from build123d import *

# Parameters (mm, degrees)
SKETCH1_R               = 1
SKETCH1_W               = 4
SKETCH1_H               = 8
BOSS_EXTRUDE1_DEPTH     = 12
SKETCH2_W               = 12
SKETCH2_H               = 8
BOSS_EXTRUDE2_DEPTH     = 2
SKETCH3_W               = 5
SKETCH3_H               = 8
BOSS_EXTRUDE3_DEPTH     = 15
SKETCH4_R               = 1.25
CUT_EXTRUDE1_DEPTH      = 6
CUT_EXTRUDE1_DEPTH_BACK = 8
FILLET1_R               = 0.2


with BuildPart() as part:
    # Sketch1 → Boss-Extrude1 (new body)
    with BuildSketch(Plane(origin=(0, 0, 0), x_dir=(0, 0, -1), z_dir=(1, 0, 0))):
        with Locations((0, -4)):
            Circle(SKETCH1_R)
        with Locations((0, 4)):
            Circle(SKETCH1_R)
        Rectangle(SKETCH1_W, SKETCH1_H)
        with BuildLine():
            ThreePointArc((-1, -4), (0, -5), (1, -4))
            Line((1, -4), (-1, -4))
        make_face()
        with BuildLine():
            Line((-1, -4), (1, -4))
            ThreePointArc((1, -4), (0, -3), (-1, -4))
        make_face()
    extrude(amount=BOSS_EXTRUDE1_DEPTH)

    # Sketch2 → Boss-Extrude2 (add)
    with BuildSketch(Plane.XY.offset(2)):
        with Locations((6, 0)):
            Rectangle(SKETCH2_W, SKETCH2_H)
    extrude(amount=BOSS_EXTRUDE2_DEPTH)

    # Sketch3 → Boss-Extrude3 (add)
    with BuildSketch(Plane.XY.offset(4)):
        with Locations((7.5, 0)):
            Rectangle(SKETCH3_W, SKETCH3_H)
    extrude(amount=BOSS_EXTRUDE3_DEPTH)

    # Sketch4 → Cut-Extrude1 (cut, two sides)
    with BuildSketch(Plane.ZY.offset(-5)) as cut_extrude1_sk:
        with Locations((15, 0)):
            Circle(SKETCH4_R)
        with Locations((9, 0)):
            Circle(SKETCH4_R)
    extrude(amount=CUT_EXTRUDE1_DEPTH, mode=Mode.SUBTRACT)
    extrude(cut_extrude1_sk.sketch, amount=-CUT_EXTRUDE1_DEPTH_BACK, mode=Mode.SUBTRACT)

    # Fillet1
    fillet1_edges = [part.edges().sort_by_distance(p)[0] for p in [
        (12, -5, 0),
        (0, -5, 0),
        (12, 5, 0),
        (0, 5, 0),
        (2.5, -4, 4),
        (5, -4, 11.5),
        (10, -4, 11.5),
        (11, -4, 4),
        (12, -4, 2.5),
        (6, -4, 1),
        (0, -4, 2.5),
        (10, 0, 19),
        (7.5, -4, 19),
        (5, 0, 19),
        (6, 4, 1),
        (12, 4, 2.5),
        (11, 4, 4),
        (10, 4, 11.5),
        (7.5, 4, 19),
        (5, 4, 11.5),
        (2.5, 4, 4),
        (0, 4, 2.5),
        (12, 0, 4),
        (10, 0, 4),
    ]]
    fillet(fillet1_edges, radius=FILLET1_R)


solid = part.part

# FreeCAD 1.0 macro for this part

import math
import FreeCAD as App
import Part
import Sketcher
from FreeCAD import Vector


def edges_at(feature, points):
    """Names of the edges that pass closest to the given points."""
    edges = feature.Shape.Edges
    near = lambda p: min(range(len(edges)), key=lambda i: edges[i].distToShape(Part.Vertex(*p))[0])
    return sorted({f"Edge{near(p) + 1}" for p in points})

doc = App.newDocument("Part")
body = doc.addObject("PartDesign::Body", "Body")

sketch1 = doc.addObject("Sketcher::SketchObject", "Sketch")
body.addObject(sketch1)
sketch1.AttachmentSupport = (doc.YZ_Plane, [""])
sketch1.MapMode = "FlatFace"
sketch1.addGeometry(Part.ArcOfCircle(Part.Circle(Vector(-4, 0, 0), Vector(0, 0, 1), 1), math.radians(90), math.radians(270)), False)
sketch1.addGeometry(Part.LineSegment(Vector(-4, -1, 0), Vector(-4, -2, 0)), False)
sketch1.addGeometry(Part.LineSegment(Vector(-4, -2, 0), Vector(4, -2, 0)), False)
sketch1.addGeometry(Part.LineSegment(Vector(4, -2, 0), Vector(4, -1, 0)), False)
sketch1.addGeometry(Part.ArcOfCircle(Part.Circle(Vector(4, 0, 0), Vector(0, 0, 1), 1), math.radians(-90), math.radians(90)), False)
sketch1.addGeometry(Part.LineSegment(Vector(4, 1, 0), Vector(4, 2, 0)), False)
sketch1.addGeometry(Part.LineSegment(Vector(4, 2, 0), Vector(-4, 2, 0)), False)
sketch1.addGeometry(Part.LineSegment(Vector(-4, 2, 0), Vector(-4, 1, 0)), False)
sketch1.addConstraint(Sketcher.Constraint("Coincident", 0, 2, 1, 1))
sketch1.addConstraint(Sketcher.Constraint("Coincident", 1, 2, 2, 1))
sketch1.addConstraint(Sketcher.Constraint("Coincident", 2, 2, 3, 1))
sketch1.addConstraint(Sketcher.Constraint("Coincident", 3, 2, 4, 1))
sketch1.addConstraint(Sketcher.Constraint("Coincident", 4, 2, 5, 1))
sketch1.addConstraint(Sketcher.Constraint("Coincident", 5, 2, 6, 1))
sketch1.addConstraint(Sketcher.Constraint("Coincident", 6, 2, 7, 1))
sketch1.addConstraint(Sketcher.Constraint("Coincident", 7, 2, 0, 1))
sketch1.addConstraint(Sketcher.Constraint("Vertical", 1))
sketch1.addConstraint(Sketcher.Constraint("Horizontal", 2))
sketch1.addConstraint(Sketcher.Constraint("Vertical", 3))
sketch1.addConstraint(Sketcher.Constraint("Vertical", 5))
sketch1.addConstraint(Sketcher.Constraint("Horizontal", 6))
sketch1.addConstraint(Sketcher.Constraint("Vertical", 7))
sketch1.addConstraint(Sketcher.Constraint("Equal", 0, 4))
sketch1.addConstraint(Sketcher.Constraint("Symmetric", 0, 3, 4, 3, -1, 1))
sketch1.addConstraint(Sketcher.Constraint("Symmetric", 1, 2, 5, 2, -1, 1))
sketch1.addConstraint(Sketcher.Constraint("Symmetric", 0, 2, 3, 2, -2))
sketch1.addConstraint(Sketcher.Constraint("Vertical", 4, 3, 2, 2))
sketch1.addConstraint(Sketcher.Constraint("Vertical", 1, 2, 6, 2))
sketch1.addConstraint(Sketcher.Constraint("Radius", 0, 1.0))
sketch1.addConstraint(Sketcher.Constraint("DistanceX", 2, 1, 2, 2, 8.0))
sketch1.addConstraint(Sketcher.Constraint("DistanceY", 1, 2, 1, 1, 1.0))
pad1 = doc.addObject("PartDesign::Pad", "Pad")
body.addObject(pad1)
pad1.Profile = sketch1
pad1.Length = 12

sketch2 = doc.addObject("Sketcher::SketchObject", "Sketch001")
body.addObject(sketch2)
sketch2.AttachmentSupport = (doc.XY_Plane, [""])
sketch2.MapMode = "FlatFace"
sketch2.AttachmentOffset = App.Placement(Vector(0, 0, 2), App.Rotation())
sketch2.addGeometry(Part.LineSegment(Vector(0, 4, 0), Vector(0, -4, 0)), False)
sketch2.addGeometry(Part.LineSegment(Vector(0, -4, 0), Vector(12, -4, 0)), False)
sketch2.addGeometry(Part.LineSegment(Vector(12, -4, 0), Vector(12, 4, 0)), False)
sketch2.addGeometry(Part.LineSegment(Vector(12, 4, 0), Vector(0, 4, 0)), False)
sketch2.addConstraint(Sketcher.Constraint("Coincident", 0, 2, 1, 1))
sketch2.addConstraint(Sketcher.Constraint("Coincident", 1, 2, 2, 1))
sketch2.addConstraint(Sketcher.Constraint("Coincident", 2, 2, 3, 1))
sketch2.addConstraint(Sketcher.Constraint("Coincident", 3, 2, 0, 1))
sketch2.addConstraint(Sketcher.Constraint("Vertical", 0))
sketch2.addConstraint(Sketcher.Constraint("Horizontal", 1))
sketch2.addConstraint(Sketcher.Constraint("Vertical", 2))
sketch2.addConstraint(Sketcher.Constraint("Horizontal", 3))
sketch2.addConstraint(Sketcher.Constraint("Symmetric", 0, 2, 3, 2, -1, 1))
sketch2.addConstraint(Sketcher.Constraint("DistanceX", 1, 1, 1, 2, 12.0))
sketch2.addConstraint(Sketcher.Constraint("DistanceY", 0, 2, 0, 1, 8.0))
pad2 = doc.addObject("PartDesign::Pad", "Pad001")
body.addObject(pad2)
pad2.Profile = sketch2
pad2.Length = 2

sketch3 = doc.addObject("Sketcher::SketchObject", "Sketch002")
body.addObject(sketch3)
sketch3.AttachmentSupport = (doc.XY_Plane, [""])
sketch3.MapMode = "FlatFace"
sketch3.AttachmentOffset = App.Placement(Vector(0, 0, 4), App.Rotation())
sketch3.addGeometry(Part.LineSegment(Vector(5, 4, 0), Vector(5, -4, 0)), False)
sketch3.addGeometry(Part.LineSegment(Vector(5, -4, 0), Vector(10, -4, 0)), False)
sketch3.addGeometry(Part.LineSegment(Vector(10, -4, 0), Vector(10, 4, 0)), False)
sketch3.addGeometry(Part.LineSegment(Vector(10, 4, 0), Vector(5, 4, 0)), False)
sketch3.addConstraint(Sketcher.Constraint("Coincident", 0, 2, 1, 1))
sketch3.addConstraint(Sketcher.Constraint("Coincident", 1, 2, 2, 1))
sketch3.addConstraint(Sketcher.Constraint("Coincident", 2, 2, 3, 1))
sketch3.addConstraint(Sketcher.Constraint("Coincident", 3, 2, 0, 1))
sketch3.addConstraint(Sketcher.Constraint("Vertical", 0))
sketch3.addConstraint(Sketcher.Constraint("Horizontal", 1))
sketch3.addConstraint(Sketcher.Constraint("Vertical", 2))
sketch3.addConstraint(Sketcher.Constraint("Horizontal", 3))
sketch3.addConstraint(Sketcher.Constraint("DistanceX", 1, 1, 1, 2, 5.0))
sketch3.addConstraint(Sketcher.Constraint("DistanceY", 0, 2, 0, 1, 8.0))
sketch3.addConstraint(Sketcher.Constraint("DistanceX", -1, 1, 0, 2, 5.0))
sketch3.addConstraint(Sketcher.Constraint("DistanceY", 0, 2, -1, 1, 4.0))
pad3 = doc.addObject("PartDesign::Pad", "Pad002")
body.addObject(pad3)
pad3.Profile = sketch3
pad3.Length = 15

sketch4 = doc.addObject("Sketcher::SketchObject", "Sketch003")
body.addObject(sketch4)
sketch4.AttachmentSupport = (doc.YZ_Plane, [""])
sketch4.MapMode = "FlatFace"
sketch4.AttachmentOffset = App.Placement(Vector(0, 0, 5), App.Rotation())
sketch4.addGeometry(Part.Circle(Vector(0, 15, 0), Vector(0, 0, 1), 1.2), False)
sketch4.addGeometry(Part.Circle(Vector(0, 9, 0), Vector(0, 0, 1), 1.2), False)
sketch4.addConstraint(Sketcher.Constraint("Equal", 0, 1))
sketch4.addConstraint(Sketcher.Constraint("PointOnObject", 0, 3, -2))
sketch4.addConstraint(Sketcher.Constraint("PointOnObject", 1, 3, -2))
sketch4.addConstraint(Sketcher.Constraint("Diameter", 0, 2.5))
sketch4.addConstraint(Sketcher.Constraint("DistanceY", -1, 1, 0, 3, 15.0))
sketch4.addConstraint(Sketcher.Constraint("DistanceY", -1, 1, 1, 3, 9.0))
pocket1 = doc.addObject("PartDesign::Pocket", "Pocket")
body.addObject(pocket1)
pocket1.Profile = sketch4
pocket1.Type = "ThroughAll"
pocket1.Midplane = True
doc.recompute()

fillet = doc.addObject("PartDesign::Fillet", "Fillet")
body.addObject(fillet)
fillet.Base = (pocket1, edges_at(pocket1, [
    (12, -5, 0),
    (0, -5, 0),
    (12, 5, 0),
    (0, 5, 0),
    (2.5, -4, 4),
    (5, -4, 11.5),
    (10, -4, 11.5),
    (11, -4, 4),
    (12, -4, 2.5),
    (6, -4, 1),
    (0, -4, 2.5),
    (10, 0, 19),
    (7.5, -4, 19),
    (5, 0, 19),
    (6, 4, 1),
    (12, 4, 2.5),
    (11, 4, 4),
    (10, 4, 11.5),
    (7.5, 4, 19),
    (5, 4, 11.5),
    (2.5, 4, 4),
    (0, 4, 2.5),
    (12, 0, 4),
    (10, 0, 4),
]))
fillet.Radius = 0.2

doc.recompute()
